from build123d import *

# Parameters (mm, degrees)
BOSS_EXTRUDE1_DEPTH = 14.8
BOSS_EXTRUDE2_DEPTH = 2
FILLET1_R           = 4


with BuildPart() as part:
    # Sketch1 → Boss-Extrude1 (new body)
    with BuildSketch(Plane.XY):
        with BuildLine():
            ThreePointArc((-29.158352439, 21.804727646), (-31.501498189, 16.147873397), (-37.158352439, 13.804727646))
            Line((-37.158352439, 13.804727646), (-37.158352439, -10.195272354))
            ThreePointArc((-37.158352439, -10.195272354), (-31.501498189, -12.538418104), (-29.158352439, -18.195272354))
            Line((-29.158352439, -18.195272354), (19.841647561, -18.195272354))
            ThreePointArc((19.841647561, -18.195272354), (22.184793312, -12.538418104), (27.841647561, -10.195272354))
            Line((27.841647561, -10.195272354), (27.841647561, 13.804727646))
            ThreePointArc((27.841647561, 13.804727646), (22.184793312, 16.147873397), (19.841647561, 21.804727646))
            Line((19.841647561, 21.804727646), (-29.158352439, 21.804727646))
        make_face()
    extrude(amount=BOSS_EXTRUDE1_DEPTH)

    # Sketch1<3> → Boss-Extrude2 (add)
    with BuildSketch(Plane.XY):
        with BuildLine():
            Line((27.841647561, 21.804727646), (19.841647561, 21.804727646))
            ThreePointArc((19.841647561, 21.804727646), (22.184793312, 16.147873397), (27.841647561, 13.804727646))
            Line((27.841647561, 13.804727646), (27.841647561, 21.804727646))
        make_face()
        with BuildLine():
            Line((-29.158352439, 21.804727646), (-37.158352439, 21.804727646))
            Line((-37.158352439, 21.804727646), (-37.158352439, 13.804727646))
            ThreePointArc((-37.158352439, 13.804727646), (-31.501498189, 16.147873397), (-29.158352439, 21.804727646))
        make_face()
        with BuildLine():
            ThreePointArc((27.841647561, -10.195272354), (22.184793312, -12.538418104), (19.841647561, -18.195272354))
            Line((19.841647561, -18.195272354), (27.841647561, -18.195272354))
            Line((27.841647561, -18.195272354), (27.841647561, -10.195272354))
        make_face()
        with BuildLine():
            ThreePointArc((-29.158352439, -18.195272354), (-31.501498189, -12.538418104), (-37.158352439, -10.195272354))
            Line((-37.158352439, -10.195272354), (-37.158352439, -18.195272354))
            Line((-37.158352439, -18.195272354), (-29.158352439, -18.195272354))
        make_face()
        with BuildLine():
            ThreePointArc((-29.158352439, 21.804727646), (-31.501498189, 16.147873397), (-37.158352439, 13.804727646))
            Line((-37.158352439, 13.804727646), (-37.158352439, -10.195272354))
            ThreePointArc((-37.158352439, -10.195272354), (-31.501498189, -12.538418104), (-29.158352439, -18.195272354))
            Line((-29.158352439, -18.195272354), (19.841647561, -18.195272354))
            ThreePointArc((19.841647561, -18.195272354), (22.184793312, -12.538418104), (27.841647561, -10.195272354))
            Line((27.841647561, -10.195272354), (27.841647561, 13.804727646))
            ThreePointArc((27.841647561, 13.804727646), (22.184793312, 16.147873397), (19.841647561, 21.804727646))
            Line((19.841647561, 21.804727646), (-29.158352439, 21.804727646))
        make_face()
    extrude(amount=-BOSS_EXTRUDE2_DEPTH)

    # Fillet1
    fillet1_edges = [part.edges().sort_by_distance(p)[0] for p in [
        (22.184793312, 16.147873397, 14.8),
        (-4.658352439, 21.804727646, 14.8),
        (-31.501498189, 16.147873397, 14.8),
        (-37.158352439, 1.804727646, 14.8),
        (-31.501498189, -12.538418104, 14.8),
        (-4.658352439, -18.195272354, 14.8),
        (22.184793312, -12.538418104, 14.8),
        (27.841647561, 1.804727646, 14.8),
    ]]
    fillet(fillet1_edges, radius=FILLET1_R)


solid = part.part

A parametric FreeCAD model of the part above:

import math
import FreeCAD as App
import Part
import Sketcher
from FreeCAD import Vector


def edges_at(feature, points):
    """Names of the edges that pass closest to the given points."""
    edges = feature.Shape.Edges
    near = lambda p: min(range(len(edges)), key=lambda i: edges[i].distToShape(Part.Vertex(*p))[0])
    return sorted({f"Edge{near(p) + 1}" for p in points})

doc = App.newDocument("Part")
params = doc.addObject("Spreadsheet::Sheet", "Params")
for row, (alias, value) in enumerate([
    ("sketch1_radius", "8 mm"),
    ("sketch1_width", "49 mm"),
    ("sketch1_height", "24 mm"),
    ("pad1_length", "14.8 mm"),
    ("sketch2_width", "65 mm"),
    ("sketch2_height", "40 mm"),
    ("pad2_length", "2 mm"),
    ("fillet_radius", "4 mm"),
], start=1):
    params.set(f"A{row}", alias)
    params.set(f"B{row}", "=" + value)
    params.setAlias(f"B{row}", alias)

body = doc.addObject("PartDesign::Body", "Body")

sketch1 = doc.addObject("Sketcher::SketchObject", "Sketch")
body.addObject(sketch1)
sketch1.AttachmentSupport = (doc.XY_Plane, [""])
sketch1.MapMode = "FlatFace"
sketch1.addGeometry([
    Part.ArcOfCircle(Part.Circle(Vector(-37.158352, 21.804728, 0), Vector(0, 0, 1), 8), math.radians(-90), math.radians(0)),
    Part.LineSegment(Vector(-37.158352, 13.804728, 0), Vector(-37.158352, -10.195272, 0)),
    Part.ArcOfCircle(Part.Circle(Vector(-37.158352, -18.195272, 0), Vector(0, 0, 1), 8), math.radians(0), math.radians(90)),
    Part.LineSegment(Vector(-29.158352, -18.195272, 0), Vector(19.841648, -18.195272, 0)),
    Part.ArcOfCircle(Part.Circle(Vector(27.841648, -18.195272, 0), Vector(0, 0, 1), 8), math.radians(90), math.radians(180)),
    Part.LineSegment(Vector(27.841648, -10.195272, 0), Vector(27.841648, 13.804728, 0)),
    Part.ArcOfCircle(Part.Circle(Vector(27.841648, 21.804728, 0), Vector(0, 0, 1), 8), math.radians(-180), math.radians(-90)),
    Part.LineSegment(Vector(19.841648, 21.804728, 0), Vector(-29.158352, 21.804728, 0)),
], False)
sketch1.addConstraint([
    Sketcher.Constraint("Coincident", 0, 1, 1, 1),
    Sketcher.Constraint("Coincident", 1, 2, 2, 2),
    Sketcher.Constraint("Coincident", 2, 1, 3, 1),
    Sketcher.Constraint("Coincident", 3, 2, 4, 2),
    Sketcher.Constraint("Coincident", 4, 1, 5, 1),
    Sketcher.Constraint("Coincident", 5, 2, 6, 2),
    Sketcher.Constraint("Coincident", 6, 1, 7, 1),
    Sketcher.Constraint("Coincident", 7, 2, 0, 2),
    Sketcher.Constraint("Vertical", 1),
    Sketcher.Constraint("Horizontal", 3),
    Sketcher.Constraint("Vertical", 5),
    Sketcher.Constraint("Horizontal", 7),
    Sketcher.Constraint("Equal", 0, 2),
    Sketcher.Constraint("Equal", 2, 4),
    Sketcher.Constraint("Equal", 4, 6),
    Sketcher.Constraint("Horizontal", 2, 3, 4, 3),
    Sketcher.Constraint("Horizontal", 0, 3, 6, 3),
    Sketcher.Constraint("Horizontal", 4, 3, 2, 1),
    Sketcher.Constraint("Horizontal", 0, 3, 6, 1),
    Sketcher.Constraint("Vertical", 0, 3, 2, 3),
    Sketcher.Constraint("Vertical", 4, 3, 6, 3),
    Sketcher.Constraint("Vertical", 2, 3, 0, 1),
    Sketcher.Constraint("Vertical", 6, 3, 4, 1),
    Sketcher.Constraint("Radius", 0, 8.0),
    Sketcher.Constraint("DistanceX", 3, 1, 3, 2, 49.0),
    Sketcher.Constraint("DistanceY", 1, 2, 1, 1, 24.0),
    Sketcher.Constraint("DistanceX", 0, 3, -1, 1, 37.158352),
    Sketcher.Constraint("DistanceY", -1, 1, 0, 3, 21.804728),
])
sketch1.setExpression("Constraints[23]", "Params.sketch1_radius")
sketch1.setExpression("Constraints[24]", "Params.sketch1_width")
sketch1.setExpression("Constraints[25]", "Params.sketch1_height")
pad1 = doc.addObject("PartDesign::Pad", "Pad")
body.addObject(pad1)
pad1.Profile = sketch1
pad1.setExpression("Length", "Params.pad1_length")

sketch2 = doc.addObject("Sketcher::SketchObject", "Sketch001")
body.addObject(sketch2)
sketch2.AttachmentSupport = (doc.XY_Plane, [""])
sketch2.MapMode = "FlatFace"
sketch2.addGeometry([
    Part.LineSegment(Vector(27.841648, 21.804728, 0), Vector(-37.158352, 21.804728, 0)),
    Part.LineSegment(Vector(-37.158352, 21.804728, 0), Vector(-37.158352, -18.195272, 0)),
    Part.LineSegment(Vector(-37.158352, -18.195272, 0), Vector(27.841648, -18.195272, 0)),
    Part.LineSegment(Vector(27.841648, -18.195272, 0), Vector(27.841648, 21.804728, 0)),
], False)
sketch2.addConstraint([
    Sketcher.Constraint("Coincident", 0, 2, 1, 1),
    Sketcher.Constraint("Coincident", 1, 2, 2, 1),
    Sketcher.Constraint("Coincident", 2, 2, 3, 1),
    Sketcher.Constraint("Coincident", 3, 2, 0, 1),
    Sketcher.Constraint("Horizontal", 0),
    Sketcher.Constraint("Vertical", 1),
    Sketcher.Constraint("Horizontal", 2),
    Sketcher.Constraint("Vertical", 3),
    Sketcher.Constraint("DistanceX", 0, 2, 0, 1, 65.0),
    Sketcher.Constraint("DistanceY", 1, 2, 1, 1, 40.0),
    Sketcher.Constraint("DistanceX", 0, 2, -1, 1, 37.158352),
    Sketcher.Constraint("DistanceY", -1, 1, 0, 2, 21.804728),
])
sketch2.setExpression("Constraints[8]", "Params.sketch2_width")
sketch2.setExpression("Constraints[9]", "Params.sketch2_height")
pad2 = doc.addObject("PartDesign::Pad", "Pad001")
body.addObject(pad2)
pad2.Profile = sketch2
pad2.setExpression("Length", "Params.pad2_length")
pad2.Reversed = True
doc.recompute()

fillet = doc.addObject("PartDesign::Fillet", "Fillet")
body.addObject(fillet)
fillet.Base = (pad2, edges_at(pad2, [
    (22.185, 16.148, 14.8),
    (-4.658, 21.805, 14.8),
    (-31.501, 16.148, 14.8),
    (-37.158, 1.805, 14.8),
    (-31.501, -12.538, 14.8),
    (-4.658, -18.195, 14.8),
    (22.185, -12.538, 14.8),
    (27.842, 1.805, 14.8),
]))
fillet.setExpression("Radius", "Params.fillet_radius")

doc.recompute()
